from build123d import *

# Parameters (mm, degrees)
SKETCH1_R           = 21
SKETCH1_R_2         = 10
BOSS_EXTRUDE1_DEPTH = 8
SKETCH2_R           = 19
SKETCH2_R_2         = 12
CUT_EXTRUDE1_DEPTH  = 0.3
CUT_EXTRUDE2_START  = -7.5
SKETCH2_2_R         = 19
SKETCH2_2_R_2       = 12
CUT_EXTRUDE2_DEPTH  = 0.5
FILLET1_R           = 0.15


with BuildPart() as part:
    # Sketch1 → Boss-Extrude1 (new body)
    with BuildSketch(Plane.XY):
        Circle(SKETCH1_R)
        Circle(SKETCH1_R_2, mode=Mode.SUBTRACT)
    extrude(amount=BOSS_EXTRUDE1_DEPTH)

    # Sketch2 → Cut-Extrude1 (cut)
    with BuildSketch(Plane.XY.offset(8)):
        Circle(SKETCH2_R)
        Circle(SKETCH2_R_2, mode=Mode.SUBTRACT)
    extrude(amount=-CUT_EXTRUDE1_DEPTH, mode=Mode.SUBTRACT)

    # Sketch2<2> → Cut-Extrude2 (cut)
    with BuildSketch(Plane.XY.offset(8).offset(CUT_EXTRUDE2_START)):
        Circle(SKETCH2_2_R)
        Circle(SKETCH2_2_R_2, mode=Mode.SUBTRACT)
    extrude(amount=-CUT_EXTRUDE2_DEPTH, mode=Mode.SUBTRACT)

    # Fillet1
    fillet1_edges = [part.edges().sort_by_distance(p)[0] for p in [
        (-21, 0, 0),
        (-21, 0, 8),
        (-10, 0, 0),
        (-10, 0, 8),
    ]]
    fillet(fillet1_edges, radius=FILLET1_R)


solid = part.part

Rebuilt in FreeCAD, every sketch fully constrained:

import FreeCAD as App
import Part
import Sketcher
Q = App.Units.Quantity


def edges_at(feature, points):
    """Names of the edges that pass closest to the given points."""
    edges = feature.Shape.Edges
    near = lambda p: min(range(len(edges)), key=lambda i: edges[i].distToShape(Part.Vertex(*p))[0])
    return sorted({f"Edge{near(p) + 1}" for p in points})

doc = App.newDocument("Part")
body = doc.addObject("PartDesign::Body", "Body")

# Sketch on XY plane
sketch1 = body.newObject("Sketcher::SketchObject", "Sketch")
sketch1.AttachmentSupport = (doc.getObject("XY_Plane"), [""])
sketch1.MapMode = "FlatFace"
sketch1.addGeometry([
    Part.Circle(App.Vector(0, 0, 0), App.Vector(0, 0, 1), 21),
    Part.Circle(App.Vector(0, 0, 0), App.Vector(0, 0, 1), 10),
], False)
sketch1.addConstraint([
    Sketcher.Constraint("Coincident", 0, 3, -1, 1),
    Sketcher.Constraint("Coincident", 1, 3, -1, 1),
    Sketcher.Constraint("Diameter", 0, Q("42 mm")),
    Sketcher.Constraint("Diameter", 1, Q("20 mm")),
])
pad1 = body.newObject("PartDesign::Pad", "Pad")
pad1.Profile = sketch1
pad1.Length = 8

# Sketch on XY plane
sketch2 = body.newObject("Sketcher::SketchObject", "Sketch001")
sketch2.AttachmentSupport = (doc.getObject("XY_Plane"), [""])
sketch2.MapMode = "FlatFace"
sketch2.AttachmentOffset = App.Placement(App.Vector(0, 0, 8), App.Rotation())
sketch2.addGeometry([
    Part.Circle(App.Vector(0, 0, 0), App.Vector(0, 0, 1), 19),
    Part.Circle(App.Vector(0, 0, 0), App.Vector(0, 0, 1), 12),
], False)
sketch2.addConstraint([
    Sketcher.Constraint("Coincident", 0, 3, -1, 1),
    Sketcher.Constraint("Coincident", 1, 3, -1, 1),
    Sketcher.Constraint("Diameter", 0, Q("38 mm")),
    Sketcher.Constraint("Diameter", 1, Q("24 mm")),
])
pocket1 = body.newObject("PartDesign::Pocket", "Pocket")
pocket1.Profile = sketch2
pocket1.Length = 0.3

# Sketch on XY plane
sketch3 = body.newObject("Sketcher::SketchObject", "Sketch002")
sketch3.AttachmentSupport = (doc.getObject("XY_Plane"), [""])
sketch3.MapMode = "FlatFace"
sketch3.AttachmentOffset = App.Placement(App.Vector(0, 0, 0.5), App.Rotation())
sketch3.addGeometry([
    Part.Circle(App.Vector(0, 0, 0), App.Vector(0, 0, 1), 19),
    Part.Circle(App.Vector(0, 0, 0), App.Vector(0, 0, 1), 12),
], False)
sketch3.addConstraint([
    Sketcher.Constraint("Coincident", 0, 3, -1, 1),
    Sketcher.Constraint("Coincident", 1, 3, -1, 1),
    Sketcher.Constraint("Diameter", 0, Q("38 mm")),
    Sketcher.Constraint("Diameter", 1, Q("24 mm")),
])
pocket2 = body.newObject("PartDesign::Pocket", "Pocket001")
pocket2.Profile = sketch3
pocket2.Length = 0.5
doc.recompute()

fillet = body.newObject("PartDesign::Fillet", "Fillet")
fillet.Base = (pocket2, edges_at(pocket2, [
    (-21, 0, 0),
    (-21, 0, 8),
    (-10, 0, 0),
    (-10, 0, 8),
]))
fillet.Radius = 0.15

doc.recompute()
